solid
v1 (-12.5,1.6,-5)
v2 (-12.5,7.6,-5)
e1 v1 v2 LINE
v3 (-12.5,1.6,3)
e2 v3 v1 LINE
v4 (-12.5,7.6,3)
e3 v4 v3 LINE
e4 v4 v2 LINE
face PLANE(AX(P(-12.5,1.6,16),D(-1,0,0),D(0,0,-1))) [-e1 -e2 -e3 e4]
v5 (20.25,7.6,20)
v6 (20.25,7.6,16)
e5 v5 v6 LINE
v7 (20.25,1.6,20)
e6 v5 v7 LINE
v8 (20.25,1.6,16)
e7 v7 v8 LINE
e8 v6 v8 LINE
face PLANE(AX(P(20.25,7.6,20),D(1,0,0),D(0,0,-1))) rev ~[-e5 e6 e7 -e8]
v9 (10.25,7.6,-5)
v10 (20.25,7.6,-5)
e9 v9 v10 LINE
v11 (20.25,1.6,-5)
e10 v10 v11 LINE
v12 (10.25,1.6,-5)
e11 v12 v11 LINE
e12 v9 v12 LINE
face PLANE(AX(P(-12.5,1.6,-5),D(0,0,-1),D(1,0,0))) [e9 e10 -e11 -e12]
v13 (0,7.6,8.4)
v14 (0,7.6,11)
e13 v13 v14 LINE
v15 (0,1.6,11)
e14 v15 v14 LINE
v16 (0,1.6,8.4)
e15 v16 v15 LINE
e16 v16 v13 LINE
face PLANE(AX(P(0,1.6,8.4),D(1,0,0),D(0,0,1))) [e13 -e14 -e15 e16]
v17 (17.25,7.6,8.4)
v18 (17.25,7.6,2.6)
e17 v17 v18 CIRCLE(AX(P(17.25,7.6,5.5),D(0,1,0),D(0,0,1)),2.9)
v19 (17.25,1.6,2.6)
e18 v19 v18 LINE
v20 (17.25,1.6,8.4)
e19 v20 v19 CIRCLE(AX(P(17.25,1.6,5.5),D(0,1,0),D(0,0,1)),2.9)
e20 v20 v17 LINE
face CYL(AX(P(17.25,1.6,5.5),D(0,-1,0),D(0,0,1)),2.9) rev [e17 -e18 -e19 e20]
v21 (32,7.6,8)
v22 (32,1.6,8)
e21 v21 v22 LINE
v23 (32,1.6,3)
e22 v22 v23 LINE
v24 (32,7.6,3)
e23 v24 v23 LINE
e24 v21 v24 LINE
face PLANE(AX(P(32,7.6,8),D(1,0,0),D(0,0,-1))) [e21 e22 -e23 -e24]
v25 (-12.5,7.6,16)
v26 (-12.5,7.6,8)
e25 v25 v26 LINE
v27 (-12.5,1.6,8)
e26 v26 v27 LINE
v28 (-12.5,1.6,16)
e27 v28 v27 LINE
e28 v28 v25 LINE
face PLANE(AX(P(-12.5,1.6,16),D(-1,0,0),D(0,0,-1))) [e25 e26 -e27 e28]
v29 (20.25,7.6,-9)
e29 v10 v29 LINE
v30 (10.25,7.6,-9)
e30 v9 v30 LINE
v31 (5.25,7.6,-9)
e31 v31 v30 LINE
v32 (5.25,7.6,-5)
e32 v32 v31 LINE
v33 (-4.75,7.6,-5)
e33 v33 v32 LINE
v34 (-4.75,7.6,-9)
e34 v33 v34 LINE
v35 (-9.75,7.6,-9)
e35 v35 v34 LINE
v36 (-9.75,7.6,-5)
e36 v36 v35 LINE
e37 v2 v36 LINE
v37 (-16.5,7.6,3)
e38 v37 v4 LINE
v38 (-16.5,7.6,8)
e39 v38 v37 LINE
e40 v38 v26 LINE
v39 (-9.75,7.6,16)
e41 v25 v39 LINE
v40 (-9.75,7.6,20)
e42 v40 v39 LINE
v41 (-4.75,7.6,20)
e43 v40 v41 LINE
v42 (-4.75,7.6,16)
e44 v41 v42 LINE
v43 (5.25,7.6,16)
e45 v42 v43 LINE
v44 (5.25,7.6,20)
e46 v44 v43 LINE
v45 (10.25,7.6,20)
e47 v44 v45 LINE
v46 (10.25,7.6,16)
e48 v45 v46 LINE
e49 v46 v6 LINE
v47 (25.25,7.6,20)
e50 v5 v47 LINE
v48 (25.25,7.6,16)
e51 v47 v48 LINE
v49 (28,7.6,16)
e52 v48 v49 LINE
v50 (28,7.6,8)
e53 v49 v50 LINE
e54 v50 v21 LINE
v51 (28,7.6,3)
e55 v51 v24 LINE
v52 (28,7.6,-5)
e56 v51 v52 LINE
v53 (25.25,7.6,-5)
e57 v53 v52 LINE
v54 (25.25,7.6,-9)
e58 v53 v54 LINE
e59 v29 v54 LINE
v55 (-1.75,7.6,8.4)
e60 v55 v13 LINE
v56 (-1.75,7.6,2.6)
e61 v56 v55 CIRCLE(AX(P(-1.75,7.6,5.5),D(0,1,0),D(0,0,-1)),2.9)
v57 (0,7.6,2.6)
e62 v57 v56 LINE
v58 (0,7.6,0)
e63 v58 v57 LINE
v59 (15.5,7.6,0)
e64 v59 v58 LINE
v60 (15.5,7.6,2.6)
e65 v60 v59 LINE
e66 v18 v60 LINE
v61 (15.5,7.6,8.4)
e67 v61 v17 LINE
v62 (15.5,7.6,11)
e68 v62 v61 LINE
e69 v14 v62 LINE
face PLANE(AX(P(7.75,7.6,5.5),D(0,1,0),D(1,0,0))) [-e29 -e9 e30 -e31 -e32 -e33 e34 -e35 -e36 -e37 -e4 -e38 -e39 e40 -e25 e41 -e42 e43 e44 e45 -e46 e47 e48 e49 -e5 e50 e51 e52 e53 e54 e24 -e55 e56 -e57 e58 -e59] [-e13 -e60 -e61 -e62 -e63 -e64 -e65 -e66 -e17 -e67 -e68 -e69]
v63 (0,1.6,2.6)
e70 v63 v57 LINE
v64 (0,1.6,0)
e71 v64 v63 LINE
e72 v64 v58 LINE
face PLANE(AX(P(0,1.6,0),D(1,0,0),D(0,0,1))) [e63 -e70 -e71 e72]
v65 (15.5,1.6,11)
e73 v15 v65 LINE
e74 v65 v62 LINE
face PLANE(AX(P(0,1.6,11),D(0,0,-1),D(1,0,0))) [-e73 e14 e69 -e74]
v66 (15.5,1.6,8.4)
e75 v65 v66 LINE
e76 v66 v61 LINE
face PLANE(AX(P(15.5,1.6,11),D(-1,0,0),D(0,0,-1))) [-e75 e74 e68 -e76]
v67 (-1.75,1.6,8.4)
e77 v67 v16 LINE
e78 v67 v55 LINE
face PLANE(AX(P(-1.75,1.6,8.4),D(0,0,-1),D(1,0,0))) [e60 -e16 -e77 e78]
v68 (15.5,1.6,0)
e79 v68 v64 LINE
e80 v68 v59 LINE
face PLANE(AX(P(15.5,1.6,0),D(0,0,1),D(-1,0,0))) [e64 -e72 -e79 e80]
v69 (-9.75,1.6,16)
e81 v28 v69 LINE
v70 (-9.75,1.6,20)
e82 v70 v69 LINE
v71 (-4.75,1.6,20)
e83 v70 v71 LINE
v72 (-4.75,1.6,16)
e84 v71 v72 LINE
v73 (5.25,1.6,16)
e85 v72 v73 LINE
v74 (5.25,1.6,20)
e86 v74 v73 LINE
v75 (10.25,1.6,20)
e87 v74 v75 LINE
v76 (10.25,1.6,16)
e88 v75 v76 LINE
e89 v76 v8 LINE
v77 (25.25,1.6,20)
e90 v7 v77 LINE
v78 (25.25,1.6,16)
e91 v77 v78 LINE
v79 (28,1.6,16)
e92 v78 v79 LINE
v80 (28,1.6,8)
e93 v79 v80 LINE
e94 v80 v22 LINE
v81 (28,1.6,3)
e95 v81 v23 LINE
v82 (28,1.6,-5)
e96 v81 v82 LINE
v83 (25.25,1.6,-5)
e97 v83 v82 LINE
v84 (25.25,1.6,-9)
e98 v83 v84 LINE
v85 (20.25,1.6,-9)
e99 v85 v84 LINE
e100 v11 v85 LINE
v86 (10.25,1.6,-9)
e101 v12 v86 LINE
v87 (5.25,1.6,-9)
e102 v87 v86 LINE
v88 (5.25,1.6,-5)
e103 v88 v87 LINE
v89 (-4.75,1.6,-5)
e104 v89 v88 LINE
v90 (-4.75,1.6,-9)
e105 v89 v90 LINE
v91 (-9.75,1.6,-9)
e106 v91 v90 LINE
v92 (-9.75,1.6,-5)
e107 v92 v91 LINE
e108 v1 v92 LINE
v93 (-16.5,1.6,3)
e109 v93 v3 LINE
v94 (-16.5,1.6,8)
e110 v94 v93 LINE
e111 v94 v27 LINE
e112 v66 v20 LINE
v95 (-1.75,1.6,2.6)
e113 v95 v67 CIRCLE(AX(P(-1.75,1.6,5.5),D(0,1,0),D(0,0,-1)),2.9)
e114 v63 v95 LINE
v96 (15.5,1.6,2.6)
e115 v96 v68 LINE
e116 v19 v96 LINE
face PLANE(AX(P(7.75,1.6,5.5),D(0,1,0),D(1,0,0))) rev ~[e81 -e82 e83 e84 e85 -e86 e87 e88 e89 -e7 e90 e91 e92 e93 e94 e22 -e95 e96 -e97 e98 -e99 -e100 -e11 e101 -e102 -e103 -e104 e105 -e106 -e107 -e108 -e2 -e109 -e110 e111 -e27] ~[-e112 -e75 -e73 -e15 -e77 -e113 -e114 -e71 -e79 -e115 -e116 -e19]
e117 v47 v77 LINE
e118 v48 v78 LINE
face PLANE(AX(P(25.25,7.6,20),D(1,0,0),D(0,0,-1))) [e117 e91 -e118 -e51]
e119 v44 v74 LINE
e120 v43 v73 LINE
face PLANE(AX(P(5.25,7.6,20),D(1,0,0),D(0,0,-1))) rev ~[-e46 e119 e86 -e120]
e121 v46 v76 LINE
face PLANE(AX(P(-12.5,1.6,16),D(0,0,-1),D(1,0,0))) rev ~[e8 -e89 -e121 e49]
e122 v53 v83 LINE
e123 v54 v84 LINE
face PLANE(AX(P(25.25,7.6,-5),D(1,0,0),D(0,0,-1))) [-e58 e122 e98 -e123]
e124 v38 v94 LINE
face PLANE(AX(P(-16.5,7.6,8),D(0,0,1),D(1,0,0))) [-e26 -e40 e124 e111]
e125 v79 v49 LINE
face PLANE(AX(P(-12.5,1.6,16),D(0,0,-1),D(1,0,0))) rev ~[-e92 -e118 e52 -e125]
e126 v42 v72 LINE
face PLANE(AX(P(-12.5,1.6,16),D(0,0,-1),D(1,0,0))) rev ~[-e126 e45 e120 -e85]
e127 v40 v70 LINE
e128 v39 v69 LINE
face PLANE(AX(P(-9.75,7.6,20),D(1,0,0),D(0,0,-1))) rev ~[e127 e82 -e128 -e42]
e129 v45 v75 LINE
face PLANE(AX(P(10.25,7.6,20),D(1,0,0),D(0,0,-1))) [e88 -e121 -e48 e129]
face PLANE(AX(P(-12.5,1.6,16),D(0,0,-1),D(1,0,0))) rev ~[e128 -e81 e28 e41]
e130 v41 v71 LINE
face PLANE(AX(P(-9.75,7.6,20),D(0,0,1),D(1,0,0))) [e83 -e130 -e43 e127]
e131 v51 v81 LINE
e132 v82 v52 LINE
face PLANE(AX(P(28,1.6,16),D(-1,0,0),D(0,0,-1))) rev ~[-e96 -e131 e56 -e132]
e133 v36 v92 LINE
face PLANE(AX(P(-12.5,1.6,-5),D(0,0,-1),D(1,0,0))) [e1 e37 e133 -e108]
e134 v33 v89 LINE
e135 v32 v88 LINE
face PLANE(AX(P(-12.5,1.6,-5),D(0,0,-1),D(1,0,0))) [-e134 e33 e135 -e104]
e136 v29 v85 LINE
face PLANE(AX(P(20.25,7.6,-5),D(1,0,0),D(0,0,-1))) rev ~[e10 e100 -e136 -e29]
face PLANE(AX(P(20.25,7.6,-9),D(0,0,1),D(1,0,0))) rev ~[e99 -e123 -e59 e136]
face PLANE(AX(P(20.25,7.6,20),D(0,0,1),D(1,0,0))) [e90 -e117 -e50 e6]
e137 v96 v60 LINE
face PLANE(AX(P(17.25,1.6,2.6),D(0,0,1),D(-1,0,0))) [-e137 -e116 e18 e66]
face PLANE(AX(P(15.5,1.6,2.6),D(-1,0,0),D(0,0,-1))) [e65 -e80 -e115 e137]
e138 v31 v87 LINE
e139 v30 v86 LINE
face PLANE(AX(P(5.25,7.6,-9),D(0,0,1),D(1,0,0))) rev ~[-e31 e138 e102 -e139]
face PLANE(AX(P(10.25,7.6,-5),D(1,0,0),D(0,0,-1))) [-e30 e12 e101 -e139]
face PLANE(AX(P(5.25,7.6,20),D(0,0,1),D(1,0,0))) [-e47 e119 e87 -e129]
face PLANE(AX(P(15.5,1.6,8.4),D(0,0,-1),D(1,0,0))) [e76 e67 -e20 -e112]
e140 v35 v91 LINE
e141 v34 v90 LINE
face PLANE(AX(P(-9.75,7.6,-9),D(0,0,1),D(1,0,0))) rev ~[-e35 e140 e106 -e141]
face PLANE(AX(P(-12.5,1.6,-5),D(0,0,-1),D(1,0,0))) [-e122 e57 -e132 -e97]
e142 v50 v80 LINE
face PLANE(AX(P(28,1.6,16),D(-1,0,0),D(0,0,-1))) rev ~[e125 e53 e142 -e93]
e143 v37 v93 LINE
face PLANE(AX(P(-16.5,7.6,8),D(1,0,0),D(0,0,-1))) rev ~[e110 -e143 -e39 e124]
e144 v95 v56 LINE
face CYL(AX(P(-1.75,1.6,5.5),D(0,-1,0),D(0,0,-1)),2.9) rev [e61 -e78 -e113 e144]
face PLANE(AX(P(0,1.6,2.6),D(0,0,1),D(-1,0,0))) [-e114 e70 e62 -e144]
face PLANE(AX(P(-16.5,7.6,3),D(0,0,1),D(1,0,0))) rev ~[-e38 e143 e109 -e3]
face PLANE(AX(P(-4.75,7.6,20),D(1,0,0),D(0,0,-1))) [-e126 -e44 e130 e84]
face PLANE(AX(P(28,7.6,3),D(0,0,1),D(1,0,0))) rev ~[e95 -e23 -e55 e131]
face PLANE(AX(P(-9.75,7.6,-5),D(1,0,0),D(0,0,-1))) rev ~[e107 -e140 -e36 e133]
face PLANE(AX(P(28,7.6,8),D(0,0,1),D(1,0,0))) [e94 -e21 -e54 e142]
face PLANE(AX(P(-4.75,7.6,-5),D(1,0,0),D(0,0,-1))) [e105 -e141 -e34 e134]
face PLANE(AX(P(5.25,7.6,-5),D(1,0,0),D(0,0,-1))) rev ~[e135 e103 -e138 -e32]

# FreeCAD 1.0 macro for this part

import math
import FreeCAD as App
import Part
import Sketcher

V = App.Vector
Q = App.Units.Quantity

doc = App.newDocument("Part")
body = doc.addObject("PartDesign::Body", "Body")

sketch1 = body.newObject("Sketcher::SketchObject", "Sketch")
sketch1.AttachmentSupport = (doc.getObject("XZ_Plane"), [""])
sketch1.MapMode = "FlatFace"
sketch1.addGeometry(Part.LineSegment(V(0, 0, 0), V(0, 11, 0)), False)
sketch1.addGeometry(Part.LineSegment(V(0, 11, 0), V(16, 11, 0)), False)
sketch1.addGeometry(Part.LineSegment(V(16, 11, 0), V(16, 0, 0)), False)
sketch1.addGeometry(Part.LineSegment(V(16, 0, 0), V(0, 0, 0)), False)
sketch1.addConstraint(Sketcher.Constraint("Coincident", 0, 2, 1, 1))
sketch1.addConstraint(Sketcher.Constraint("Coincident", 1, 2, 2, 1))
sketch1.addConstraint(Sketcher.Constraint("Coincident", 2, 2, 3, 1))
sketch1.addConstraint(Sketcher.Constraint("Coincident", 3, 2, 0, 1))
sketch1.addConstraint(Sketcher.Constraint("Vertical", 0))
sketch1.addConstraint(Sketcher.Constraint("Horizontal", 1))
sketch1.addConstraint(Sketcher.Constraint("Vertical", 2))
sketch1.addConstraint(Sketcher.Constraint("Horizontal", 3))
sketch1.addConstraint(Sketcher.Constraint("Coincident", 3, 2, -1, 1))
sketch1.addConstraint(Sketcher.Constraint("DistanceY", 0, 1, 0, 2, Q("11 mm")))
sketch1.addConstraint(Sketcher.Constraint("DistanceX", 1, 1, 1, 2, Q("15.5 mm")))
pad1 = body.newObject("PartDesign::Pad", "Pad")
pad1.Profile = sketch1
pad1.Length = 1.6
pad1.Reversed = True

sketch2 = body.newObject("Sketcher::SketchObject", "Sketch001")
sketch2.AttachmentSupport = (doc.getObject("XZ_Plane"), [""])
sketch2.MapMode = "FlatFace"
sketch2.AttachmentOffset = App.Placement(V(0, 0, -1.6), App.Rotation())
sketch2.addGeometry(Part.ArcOfCircle(Part.Circle(V(-1.8, 5.5, 0), V(0, 0, 1), 2.9), math.radians(90), math.radians(270)), False)
sketch2.addGeometry(Part.LineSegment(V(-1.8, 8.4, 0), V(0, 8.4, 0)), False)
sketch2.addGeometry(Part.LineSegment(V(0, 8.4, 0), V(0, 2.6, 0)), False)
sketch2.addGeometry(Part.LineSegment(V(0, 2.6, 0), V(-1.8, 2.6, 0)), False)
sketch2.addGeometry(Part.ArcOfCircle(Part.Circle(V(-1.8, 5.5, 0), V(0, 0, 1), 1.5), math.radians(90), math.radians(270)), False)
sketch2.addGeometry(Part.ArcOfCircle(Part.Circle(V(-1.7, 5.5, 0), V(0, 0, 1), 1.5), math.radians(-90), math.radians(0)), False)
sketch2.addGeometry(Part.ArcOfCircle(Part.Circle(V(-1.7, 5.5, 0), V(0, 0, 1), 1.5), math.radians(0), math.radians(90)), False)
sketch2.addGeometry(Part.ArcOfCircle(Part.Circle(V(17.2, 5.5, 0), V(0, 0, 1), 2.9), math.radians(-90), math.radians(0)), False)
sketch2.addGeometry(Part.LineSegment(V(17.2, 2.6, 0), V(15.5, 2.6, 0)), False)
sketch2.addGeometry(Part.LineSegment(V(15.5, 2.6, 0), V(15.5, 8.4, 0)), False)
sketch2.addGeometry(Part.LineSegment(V(15.5, 8.4, 0), V(17.2, 8.4, 0)), False)
sketch2.addGeometry(Part.ArcOfCircle(Part.Circle(V(17.2, 5.5, 0), V(0, 0, 1), 2.9), math.radians(0), math.radians(90)), False)
sketch2.addGeometry(Part.ArcOfCircle(Part.Circle(V(17.3, 5.5, 0), V(0, 0, 1), 1.5), math.radians(-90), math.radians(0)), False)
sketch2.addGeometry(Part.ArcOfCircle(Part.Circle(V(17.3, 5.5, 0), V(0, 0, 1), 1.5), math.radians(0), math.radians(90)), False)
sketch2.addGeometry(Part.ArcOfCircle(Part.Circle(V(17.2, 5.5, 0), V(0, 0, 1), 1.5), math.radians(90), math.radians(270)), False)
sketch2.addConstraint(Sketcher.Constraint("Tangent", 0, 1, 1, 1))
sketch2.addConstraint(Sketcher.Constraint("Coincident", 1, 2, 2, 1))
sketch2.addConstraint(Sketcher.Constraint("Coincident", 2, 2, 3, 1))
sketch2.addConstraint(Sketcher.Constraint("Tangent", 3, 2, 0, 2))
sketch2.addConstraint(Sketcher.Constraint("Tangent", 4, 2, 5, 1))
sketch2.addConstraint(Sketcher.Constraint("Tangent", 5, 2, 6, 1))
sketch2.addConstraint(Sketcher.Constraint("Tangent", 6, 2, 4, 1))
sketch2.addConstraint(Sketcher.Constraint("Tangent", 7, 1, 8, 1))
sketch2.addConstraint(Sketcher.Constraint("Coincident", 8, 2, 9, 1))
sketch2.addConstraint(Sketcher.Constraint("Coincident", 9, 2, 10, 1))
sketch2.addConstraint(Sketcher.Constraint("Tangent", 10, 2, 11, 2))
sketch2.addConstraint(Sketcher.Constraint("Tangent", 11, 1, 7, 2))
sketch2.addConstraint(Sketcher.Constraint("Tangent", 12, 2, 13, 1))
sketch2.addConstraint(Sketcher.Constraint("Tangent", 13, 2, 14, 1))
sketch2.addConstraint(Sketcher.Constraint("Tangent", 14, 2, 12, 1))
sketch2.addConstraint(Sketcher.Constraint("Horizontal", 1))
sketch2.addConstraint(Sketcher.Constraint("Vertical", 2))
sketch2.addConstraint(Sketcher.Constraint("Horizontal", 3))
sketch2.addConstraint(Sketcher.Constraint("Horizontal", 8))
sketch2.addConstraint(Sketcher.Constraint("Vertical", 9))
sketch2.addConstraint(Sketcher.Constraint("Horizontal", 10))
sketch2.addConstraint(Sketcher.Constraint("Coincident", 4, 3, 0, 3))
sketch2.addConstraint(Sketcher.Constraint("Coincident", 12, 3, 7, 3))
sketch2.addConstraint(Sketcher.Constraint("Equal", 0, 7))
sketch2.addConstraint(Sketcher.Constraint("Equal", 7, 11))
sketch2.addConstraint(Sketcher.Constraint("Equal", 6, 12))
sketch2.addConstraint(Sketcher.Constraint("PointOnObject", 1, 2, -2))
sketch2.addConstraint(Sketcher.Constraint("Horizontal", 6, 3, 7, 3))
sketch2.addConstraint(Sketcher.Constraint("Horizontal", 14, 3, 5, 2))
sketch2.addConstraint(Sketcher.Constraint("Horizontal", 5, 2, 11, 1))
sketch2.addConstraint(Sketcher.Constraint("Horizontal", 11, 1, 12, 2))
sketch2.addConstraint(Sketcher.Constraint("Vertical", 3, 2, 4, 2))
sketch2.addConstraint(Sketcher.Constraint("Vertical", 4, 2, 6, 2))
sketch2.addConstraint(Sketcher.Constraint("Vertical", 10, 2, 13, 2))
sketch2.addConstraint(Sketcher.Constraint("Vertical", 13, 2, 14, 2))
sketch2.addConstraint(Sketcher.Constraint("Equal", 3, 8))
sketch2.addConstraint(Sketcher.Constraint("Radius", 0, Q("2.9 mm")))
sketch2.addConstraint(Sketcher.Constraint("Radius", 4, Q("1.5 mm")))
sketch2.addConstraint(Sketcher.Constraint("DistanceY", -1, 1, 4, 2, Q("4 mm")))
sketch2.addConstraint(Sketcher.Constraint("DistanceX", 5, 3, 7, 3, Q("19 mm")))
sketch2.addConstraint(Sketcher.Constraint("DistanceX", 1, 1, 1, 2, Q("1.75 mm")))
pad2 = body.newObject("PartDesign::Pad", "Pad001")
pad2.Profile = sketch2
pad2.Type = "UpToLast"

sketch3 = body.newObject("Sketcher::SketchObject", "Sketch002")
sketch3.AttachmentSupport = (doc.getObject("XZ_Plane"), [""])
sketch3.MapMode = "FlatFace"
sketch3.AttachmentOffset = App.Placement(V(0, 0, -1.6), App.Rotation())
sketch3.addGeometry(Part.LineSegment(V(0, 0, 0), V(0, 2.6, 0)), False)
sketch3.addGeometry(Part.LineSegment(V(0, 2.6, 0), V(-1.8, 2.6, 0)), False)
sketch3.addGeometry(Part.ArcOfCircle(Part.Circle(V(-1.8, 5.5, 0), V(0, 0, 1), 2.9), math.radians(90), math.radians(270)), False)
sketch3.addGeometry(Part.LineSegment(V(-1.8, 8.4, 0), V(0, 8.4, 0)), False)
sketch3.addGeometry(Part.LineSegment(V(0, 8.4, 0), V(0, 11, 0)), False)
sketch3.addGeometry(Part.LineSegment(V(0, 11, 0), V(15.5, 11, 0)), False)
sketch3.addGeometry(Part.LineSegment(V(15.5, 11, 0), V(15.5, 8.4, 0)), False)
sketch3.addGeometry(Part.LineSegment(V(15.5, 8.4, 0), V(17.2, 8.4, 0)), False)
sketch3.addGeometry(Part.ArcOfCircle(Part.Circle(V(17.2, 5.5, 0), V(0, 0, 1), 2.9), math.radians(-90), math.radians(90)), False)
sketch3.addGeometry(Part.LineSegment(V(17.2, 2.6, 0), V(15.5, 2.6, 0)), False)
sketch3.addGeometry(Part.LineSegment(V(15.5, 2.6, 0), V(15.5, 0, 0)), False)
sketch3.addGeometry(Part.LineSegment(V(15.5, 0, 0), V(0, 0, 0)), False)
sketch3.addConstraint(Sketcher.Constraint("Coincident", 0, 2, 1, 1))
sketch3.addConstraint(Sketcher.Constraint("Tangent", 1, 2, 2, 2))
sketch3.addConstraint(Sketcher.Constraint("Tangent", 2, 1, 3, 1))
sketch3.addConstraint(Sketcher.Constraint("Coincident", 3, 2, 4, 1))
sketch3.addConstraint(Sketcher.Constraint("Coincident", 4, 2, 5, 1))
sketch3.addConstraint(Sketcher.Constraint("Coincident", 5, 2, 6, 1))
sketch3.addConstraint(Sketcher.Constraint("Coincident", 6, 2, 7, 1))
sketch3.addConstraint(Sketcher.Constraint("Tangent", 7, 2, 8, 2))
sketch3.addConstraint(Sketcher.Constraint("Tangent", 8, 1, 9, 1))
sketch3.addConstraint(Sketcher.Constraint("Coincident", 9, 2, 10, 1))
sketch3.addConstraint(Sketcher.Constraint("Coincident", 10, 2, 11, 1))
sketch3.addConstraint(Sketcher.Constraint("Coincident", 11, 2, 0, 1))
sketch3.addConstraint(Sketcher.Constraint("Vertical", 0))
sketch3.addConstraint(Sketcher.Constraint("Horizontal", 1))
sketch3.addConstraint(Sketcher.Constraint("Horizontal", 3))
sketch3.addConstraint(Sketcher.Constraint("Vertical", 4))
sketch3.addConstraint(Sketcher.Constraint("Horizontal", 5))
sketch3.addConstraint(Sketcher.Constraint("Vertical", 6))
sketch3.addConstraint(Sketcher.Constraint("Horizontal", 7))
sketch3.addConstraint(Sketcher.Constraint("Horizontal", 9))
sketch3.addConstraint(Sketcher.Constraint("Vertical", 10))
sketch3.addConstraint(Sketcher.Constraint("Horizontal", 11))
sketch3.addConstraint(Sketcher.Constraint("Coincident", 11, 2, -1, 1))
sketch3.addConstraint(Sketcher.Constraint("Equal", 2, 8))
sketch3.addConstraint(Sketcher.Constraint("PointOnObject", 3, 2, -2))
sketch3.addConstraint(Sketcher.Constraint("Horizontal", 2, 3, 8, 3))
sketch3.addConstraint(Sketcher.Constraint("Vertical", 6, 2, 9, 2))
sketch3.addConstraint(Sketcher.Constraint("Equal", 3, 7))
sketch3.addConstraint(Sketcher.Constraint("Equal", 0, 4))
sketch3.addConstraint(Sketcher.Constraint("Radius", 2, Q("2.9 mm")))
sketch3.addConstraint(Sketcher.Constraint("DistanceX", 5, 1, 5, 2, Q("15.5 mm")))
sketch3.addConstraint(Sketcher.Constraint("DistanceY", 0, 1, 0, 2, Q("2.6 mm")))
sketch3.addConstraint(Sketcher.Constraint("DistanceX", 2, 3, 8, 3, Q("19 mm")))
pocket1 = body.newObject("PartDesign::Pocket", "Pocket")
pocket1.Profile = sketch3
pocket1.Type = "ThroughAll"
pocket1.Reversed = True
body2 = doc.addObject("PartDesign::Body", "Body001")

sketch4 = body2.newObject("Sketcher::SketchObject", "Sketch003")
sketch4.AttachmentSupport = (doc.getObject("XZ_Plane001"), [""])
sketch4.MapMode = "FlatFace"
sketch4.AttachmentOffset = App.Placement(V(0, 0, -1.6), App.Rotation())
sketch4.addGeometry(Part.LineSegment(V(-12.5, -5, 0), V(-12.5, 16, 0)), False)
sketch4.addGeometry(Part.LineSegment(V(-12.5, 16, 0), V(28, 16, 0)), False)
sketch4.addGeometry(Part.LineSegment(V(28, 16, 0), V(28, -5, 0)), False)
sketch4.addGeometry(Part.LineSegment(V(28, -5, 0), V(-12.5, -5, 0)), False)
sketch4.addGeometry(Part.LineSegment(V(0, 2.6, 0), V(0, 0, 0)), False)
sketch4.addGeometry(Part.LineSegment(V(0, 0, 0), V(15.5, 0, 0)), False)
sketch4.addGeometry(Part.LineSegment(V(15.5, 0, 0), V(15.5, 2.6, 0)), False)
sketch4.addGeometry(Part.LineSegment(V(15.5, 2.6, 0), V(17.2, 2.6, 0)), False)
sketch4.addGeometry(Part.ArcOfCircle(Part.Circle(V(17.2, 5.5, 0), V(0, 0, 1), 2.9), math.radians(-90), math.radians(90)), False)
sketch4.addGeometry(Part.LineSegment(V(17.2, 8.4, 0), V(15.5, 8.4, 0)), False)
sketch4.addGeometry(Part.LineSegment(V(15.5, 8.4, 0), V(15.5, 11, 0)), False)
sketch4.addGeometry(Part.LineSegment(V(15.5, 11, 0), V(0, 11, 0)), False)
sketch4.addGeometry(Part.LineSegment(V(0, 11, 0), V(0, 8.4, 0)), False)
sketch4.addGeometry(Part.LineSegment(V(0, 8.4, 0), V(-1.8, 8.4, 0)), False)
sketch4.addGeometry(Part.ArcOfCircle(Part.Circle(V(-1.8, 5.5, 0), V(0, 0, 1), 2.9), math.radians(90), math.radians(270)), False)
sketch4.addGeometry(Part.LineSegment(V(-1.8, 2.6, 0), V(0, 2.6, 0)), False)
sketch4.addConstraint(Sketcher.Constraint("Coincident", 0, 2, 1, 1))
sketch4.addConstraint(Sketcher.Constraint("Coincident", 1, 2, 2, 1))
sketch4.addConstraint(Sketcher.Constraint("Coincident", 2, 2, 3, 1))
sketch4.addConstraint(Sketcher.Constraint("Coincident", 3, 2, 0, 1))
sketch4.addConstraint(Sketcher.Constraint("Coincident", 4, 2, 5, 1))
sketch4.addConstraint(Sketcher.Constraint("Coincident", 5, 2, 6, 1))
sketch4.addConstraint(Sketcher.Constraint("Coincident", 6, 2, 7, 1))
sketch4.addConstraint(Sketcher.Constraint("Tangent", 7, 2, 8, 1))
sketch4.addConstraint(Sketcher.Constraint("Tangent", 8, 2, 9, 1))
sketch4.addConstraint(Sketcher.Constraint("Coincident", 9, 2, 10, 1))
sketch4.addConstraint(Sketcher.Constraint("Coincident", 10, 2, 11, 1))
sketch4.addConstraint(Sketcher.Constraint("Coincident", 11, 2, 12, 1))
sketch4.addConstraint(Sketcher.Constraint("Coincident", 12, 2, 13, 1))
sketch4.addConstraint(Sketcher.Constraint("Tangent", 13, 2, 14, 1))
sketch4.addConstraint(Sketcher.Constraint("Tangent", 14, 2, 15, 1))
sketch4.addConstraint(Sketcher.Constraint("Coincident", 15, 2, 4, 1))
sketch4.addConstraint(Sketcher.Constraint("Vertical", 0))
sketch4.addConstraint(Sketcher.Constraint("Horizontal", 1))
sketch4.addConstraint(Sketcher.Constraint("Vertical", 2))
sketch4.addConstraint(Sketcher.Constraint("Horizontal", 3))
sketch4.addConstraint(Sketcher.Constraint("Vertical", 4))
sketch4.addConstraint(Sketcher.Constraint("Horizontal", 5))
sketch4.addConstraint(Sketcher.Constraint("Vertical", 6))
sketch4.addConstraint(Sketcher.Constraint("Horizontal", 7))
sketch4.addConstraint(Sketcher.Constraint("Horizontal", 9))
sketch4.addConstraint(Sketcher.Constraint("Vertical", 10))
sketch4.addConstraint(Sketcher.Constraint("Horizontal", 11))
sketch4.addConstraint(Sketcher.Constraint("Vertical", 12))
sketch4.addConstraint(Sketcher.Constraint("Horizontal", 13))
sketch4.addConstraint(Sketcher.Constraint("Horizontal", 15))
sketch4.addConstraint(Sketcher.Constraint("Coincident", 4, 2, -1, 1))
sketch4.addConstraint(Sketcher.Constraint("Equal", 8, 14))
sketch4.addConstraint(Sketcher.Constraint("PointOnObject", 11, 2, -2))
sketch4.addConstraint(Sketcher.Constraint("Horizontal", 8, 3, 14, 3))
sketch4.addConstraint(Sketcher.Constraint("Vertical", 6, 2, 9, 2))
sketch4.addConstraint(Sketcher.Constraint("Equal", 9, 13))
sketch4.addConstraint(Sketcher.Constraint("Equal", 6, 10))
sketch4.addConstraint(Sketcher.Constraint("Radius", 8, Q("2.9 mm")))
sketch4.addConstraint(Sketcher.Constraint("DistanceY", 0, 1, 0, 2, Q("21 mm")))
sketch4.addConstraint(Sketcher.Constraint("DistanceX", 1, 1, 1, 2, Q("40.5 mm")))
sketch4.addConstraint(Sketcher.Constraint("DistanceX", 5, 1, 5, 2, Q("15.5 mm")))
sketch4.addConstraint(Sketcher.Constraint("DistanceY", 4, 2, 4, 1, Q("2.6 mm")))
sketch4.addConstraint(Sketcher.Constraint("DistanceY", -1, 1, 0, 2, Q("16 mm")))
sketch4.addConstraint(Sketcher.Constraint("DistanceX", -1, 1, 1, 2, Q("28 mm")))
sketch4.addConstraint(Sketcher.Constraint("DistanceX", 14, 3, 8, 3, Q("19 mm")))
pad3 = body2.newObject("PartDesign::Pad", "Pad002")
pad3.Profile = sketch4
pad3.Length = 6
pad3.Reversed = True

sketch5 = body2.newObject("Sketcher::SketchObject", "Sketch004")
sketch5.AttachmentSupport = (doc.getObject("XZ_Plane001"), [""])
sketch5.MapMode = "FlatFace"
sketch5.AttachmentOffset = App.Placement(V(0, 0, -7.6), App.Rotation())
sketch5.addGeometry(Part.LineSegment(V(5.2, -9, 0), V(5.2, -5, 0)), False)
sketch5.addGeometry(Part.LineSegment(V(5.2, -5, 0), V(10.2, -5, 0)), False)
sketch5.addGeometry(Part.LineSegment(V(10.2, -5, 0), V(10.2, -9, 0)), False)
sketch5.addGeometry(Part.LineSegment(V(10.2, -9, 0), V(5.2, -9, 0)), False)
sketch5.addGeometry(Part.LineSegment(V(5.2, 16, 0), V(5.2, 20, 0)), False)
sketch5.addGeometry(Part.LineSegment(V(5.2, 20, 0), V(10.2, 20, 0)), False)
sketch5.addGeometry(Part.LineSegment(V(10.2, 20, 0), V(10.2, 16, 0)), False)
sketch5.addGeometry(Part.LineSegment(V(10.2, 16, 0), V(5.2, 16, 0)), False)
sketch5.addConstraint(Sketcher.Constraint("Coincident", 0, 2, 1, 1))
sketch5.addConstraint(Sketcher.Constraint("Coincident", 1, 2, 2, 1))
sketch5.addConstraint(Sketcher.Constraint("Coincident", 2, 2, 3, 1))
sketch5.addConstraint(Sketcher.Constraint("Coincident", 3, 2, 0, 1))
sketch5.addConstraint(Sketcher.Constraint("Coincident", 4, 2, 5, 1))
sketch5.addConstraint(Sketcher.Constraint("Coincident", 5, 2, 6, 1))
sketch5.addConstraint(Sketcher.Constraint("Coincident", 6, 2, 7, 1))
sketch5.addConstraint(Sketcher.Constraint("Coincident", 7, 2, 4, 1))
sketch5.addConstraint(Sketcher.Constraint("Vertical", 0))
sketch5.addConstraint(Sketcher.Constraint("Horizontal", 1))
sketch5.addConstraint(Sketcher.Constraint("Vertical", 2))
sketch5.addConstraint(Sketcher.Constraint("Horizontal", 3))
sketch5.addConstraint(Sketcher.Constraint("Vertical", 4))
sketch5.addConstraint(Sketcher.Constraint("Horizontal", 5))
sketch5.addConstraint(Sketcher.Constraint("Vertical", 6))
sketch5.addConstraint(Sketcher.Constraint("Horizontal", 7))
sketch5.addConstraint(Sketcher.Constraint("Vertical", 3, 2, 4, 2))
sketch5.addConstraint(Sketcher.Constraint("Vertical", 2, 2, 5, 2))
sketch5.addConstraint(Sketcher.Constraint("Equal", 2, 4))
sketch5.addConstraint(Sketcher.Constraint("DistanceX", 1, 1, 1, 2, Q("5 mm")))
sketch5.addConstraint(Sketcher.Constraint("DistanceY", 0, 1, 0, 2, Q("4 mm")))
sketch5.addConstraint(Sketcher.Constraint("DistanceY", 0, 2, -1, 1, Q("5 mm")))
sketch5.addConstraint(Sketcher.Constraint("DistanceY", -1, 1, 4, 2, Q("20 mm")))
sketch5.addConstraint(Sketcher.Constraint("DistanceX", -1, 1, 0, 2, Q("5.25 mm")))
pad4 = body2.newObject("PartDesign::Pad", "Pad003")
pad4.Profile = sketch5
pad4.Length = 6
doc.recompute()

linearpattern = body2.newObject("PartDesign::LinearPattern", "LinearPattern")
linearpattern.Originals = [pad4]
linearpattern.Direction = (doc.getObject("X_Axis001"), [""])
linearpattern.Mode = "offset"
linearpattern.Offset = 15
linearpattern.Occurrences = 2
body2.Tip = linearpattern
doc.recompute()

linearpattern2 = body2.newObject("PartDesign::LinearPattern", "LinearPattern001")
linearpattern2.Originals = [pad4]
linearpattern2.Direction = (doc.getObject("X_Axis001"), [""])
linearpattern2.Mode = "offset"
linearpattern2.Offset = 15
linearpattern2.Occurrences = 2
linearpattern2.Reversed = True
body2.Tip = linearpattern2

sketch6 = body2.newObject("Sketcher::SketchObject", "Sketch005")
sketch6.AttachmentSupport = (doc.getObject("XZ_Plane001"), [""])
sketch6.MapMode = "FlatFace"
sketch6.AttachmentOffset = App.Placement(V(0, 0, -7.6), App.Rotation())
sketch6.addGeometry(Part.LineSegment(V(-16.5, 3, 0), V(-16.5, 8, 0)), False)
sketch6.addGeometry(Part.LineSegment(V(-16.5, 8, 0), V(-12.5, 8, 0)), False)
sketch6.addGeometry(Part.LineSegment(V(-12.5, 8, 0), V(-12.5, 3, 0)), False)
sketch6.addGeometry(Part.LineSegment(V(-12.5, 3, 0), V(-16.5, 3, 0)), False)
sketch6.addGeometry(Part.LineSegment(V(28, 3, 0), V(28, 8, 0)), False)
sketch6.addGeometry(Part.LineSegment(V(28, 8, 0), V(32, 8, 0)), False)
sketch6.addGeometry(Part.LineSegment(V(32, 8, 0), V(32, 3, 0)), False)
sketch6.addGeometry(Part.LineSegment(V(32, 3, 0), V(28, 3, 0)), False)
sketch6.addConstraint(Sketcher.Constraint("Coincident", 0, 2, 1, 1))
sketch6.addConstraint(Sketcher.Constraint("Coincident", 1, 2, 2, 1))
sketch6.addConstraint(Sketcher.Constraint("Coincident", 2, 2, 3, 1))
sketch6.addConstraint(Sketcher.Constraint("Coincident", 3, 2, 0, 1))
sketch6.addConstraint(Sketcher.Constraint("Coincident", 4, 2, 5, 1))
sketch6.addConstraint(Sketcher.Constraint("Coincident", 5, 2, 6, 1))
sketch6.addConstraint(Sketcher.Constraint("Coincident", 6, 2, 7, 1))
sketch6.addConstraint(Sketcher.Constraint("Coincident", 7, 2, 4, 1))
sketch6.addConstraint(Sketcher.Constraint("Vertical", 0))
sketch6.addConstraint(Sketcher.Constraint("Horizontal", 1))
sketch6.addConstraint(Sketcher.Constraint("Vertical", 2))
sketch6.addConstraint(Sketcher.Constraint("Horizontal", 3))
sketch6.addConstraint(Sketcher.Constraint("Vertical", 4))
sketch6.addConstraint(Sketcher.Constraint("Horizontal", 5))
sketch6.addConstraint(Sketcher.Constraint("Vertical", 6))
sketch6.addConstraint(Sketcher.Constraint("Horizontal", 7))
sketch6.addConstraint(Sketcher.Constraint("Horizontal", 1, 2, 4, 2))
sketch6.addConstraint(Sketcher.Constraint("Horizontal", 3, 2, 6, 2))
sketch6.addConstraint(Sketcher.Constraint("Equal", 3, 5))
sketch6.addConstraint(Sketcher.Constraint("DistanceX", 1, 1, 1, 2, Q("4 mm")))
sketch6.addConstraint(Sketcher.Constraint("DistanceY", 0, 1, 0, 2, Q("5 mm")))
sketch6.addConstraint(Sketcher.Constraint("DistanceY", -1, 1, 0, 2, Q("8 mm")))
sketch6.addConstraint(Sketcher.Constraint("DistanceX", -1, 1, 4, 2, Q("28 mm")))
sketch6.addConstraint(Sketcher.Constraint("DistanceX", 0, 2, -1, 1, Q("16.5 mm")))
pad5 = body2.newObject("PartDesign::Pad", "Pad004")
pad5.Profile = sketch6
pad5.Length = 6

doc.recompute()
